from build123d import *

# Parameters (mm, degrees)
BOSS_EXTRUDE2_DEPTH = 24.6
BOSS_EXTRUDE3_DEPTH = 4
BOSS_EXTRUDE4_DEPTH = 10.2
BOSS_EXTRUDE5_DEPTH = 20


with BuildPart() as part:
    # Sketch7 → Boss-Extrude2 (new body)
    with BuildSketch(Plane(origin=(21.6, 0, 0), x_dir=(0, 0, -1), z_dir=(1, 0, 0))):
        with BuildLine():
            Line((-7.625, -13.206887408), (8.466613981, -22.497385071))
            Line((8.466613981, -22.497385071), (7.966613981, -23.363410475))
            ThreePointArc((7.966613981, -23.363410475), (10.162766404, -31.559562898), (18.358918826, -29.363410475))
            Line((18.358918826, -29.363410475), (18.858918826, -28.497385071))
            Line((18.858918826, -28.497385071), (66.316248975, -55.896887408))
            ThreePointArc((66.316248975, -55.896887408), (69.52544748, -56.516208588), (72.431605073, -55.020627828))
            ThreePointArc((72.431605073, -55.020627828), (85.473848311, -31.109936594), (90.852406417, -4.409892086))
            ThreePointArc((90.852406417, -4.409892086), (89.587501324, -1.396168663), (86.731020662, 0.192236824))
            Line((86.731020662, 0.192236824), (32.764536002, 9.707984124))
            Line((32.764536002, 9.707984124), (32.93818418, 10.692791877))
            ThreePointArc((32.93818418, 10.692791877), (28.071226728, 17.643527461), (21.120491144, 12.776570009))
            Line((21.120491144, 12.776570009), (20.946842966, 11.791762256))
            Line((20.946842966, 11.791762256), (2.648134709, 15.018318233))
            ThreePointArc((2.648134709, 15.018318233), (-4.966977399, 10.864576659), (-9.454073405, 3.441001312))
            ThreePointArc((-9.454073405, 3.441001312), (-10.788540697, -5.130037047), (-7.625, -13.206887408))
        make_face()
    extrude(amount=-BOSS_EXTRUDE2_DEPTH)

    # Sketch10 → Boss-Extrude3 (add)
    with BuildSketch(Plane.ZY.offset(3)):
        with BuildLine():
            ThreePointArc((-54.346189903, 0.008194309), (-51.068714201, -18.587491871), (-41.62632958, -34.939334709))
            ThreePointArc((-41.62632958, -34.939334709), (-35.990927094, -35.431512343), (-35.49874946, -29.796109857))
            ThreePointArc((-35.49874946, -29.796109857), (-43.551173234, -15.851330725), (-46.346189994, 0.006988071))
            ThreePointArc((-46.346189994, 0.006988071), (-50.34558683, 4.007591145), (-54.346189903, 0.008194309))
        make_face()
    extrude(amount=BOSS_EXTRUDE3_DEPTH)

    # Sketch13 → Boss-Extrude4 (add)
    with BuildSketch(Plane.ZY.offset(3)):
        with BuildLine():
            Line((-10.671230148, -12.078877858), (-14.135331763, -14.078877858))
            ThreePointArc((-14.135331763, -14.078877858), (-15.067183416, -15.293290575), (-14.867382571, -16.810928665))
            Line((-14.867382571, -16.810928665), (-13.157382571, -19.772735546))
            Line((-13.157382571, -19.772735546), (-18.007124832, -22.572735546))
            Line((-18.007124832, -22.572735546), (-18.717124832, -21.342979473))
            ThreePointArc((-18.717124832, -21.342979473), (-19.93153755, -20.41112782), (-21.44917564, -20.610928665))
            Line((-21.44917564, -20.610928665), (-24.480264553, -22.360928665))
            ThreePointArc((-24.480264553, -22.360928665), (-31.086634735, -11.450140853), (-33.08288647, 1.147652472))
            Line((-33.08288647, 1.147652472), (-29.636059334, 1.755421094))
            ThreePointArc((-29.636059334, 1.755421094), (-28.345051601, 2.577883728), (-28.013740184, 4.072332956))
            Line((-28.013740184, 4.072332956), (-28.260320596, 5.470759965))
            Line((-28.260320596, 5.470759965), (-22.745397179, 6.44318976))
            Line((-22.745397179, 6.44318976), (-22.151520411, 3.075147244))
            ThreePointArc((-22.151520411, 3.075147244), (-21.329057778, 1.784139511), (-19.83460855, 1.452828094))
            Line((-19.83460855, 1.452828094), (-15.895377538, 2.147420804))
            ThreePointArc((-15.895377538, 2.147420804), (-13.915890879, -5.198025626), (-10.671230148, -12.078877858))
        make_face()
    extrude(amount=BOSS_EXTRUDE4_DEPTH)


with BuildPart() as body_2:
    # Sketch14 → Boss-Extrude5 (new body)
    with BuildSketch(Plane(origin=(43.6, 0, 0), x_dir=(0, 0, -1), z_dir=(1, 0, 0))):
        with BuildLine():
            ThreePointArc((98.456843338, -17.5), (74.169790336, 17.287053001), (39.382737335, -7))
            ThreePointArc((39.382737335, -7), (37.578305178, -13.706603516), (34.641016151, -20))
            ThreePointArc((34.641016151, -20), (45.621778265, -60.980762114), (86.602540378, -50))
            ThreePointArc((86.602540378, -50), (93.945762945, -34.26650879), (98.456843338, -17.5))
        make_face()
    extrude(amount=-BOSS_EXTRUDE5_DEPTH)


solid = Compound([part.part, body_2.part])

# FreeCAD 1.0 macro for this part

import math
import FreeCAD as App
import Part
import Sketcher
Q = App.Units.Quantity

doc = App.newDocument("Part")
body = doc.addObject("PartDesign::Body", "Body")

sketch1 = doc.addObject("Sketcher::SketchObject", "Sketch")
body.addObject(sketch1)
sketch1.AttachmentSupport = (doc.YZ_Plane, [""])
sketch1.MapMode = "FlatFace"
sketch1.AttachmentOffset = App.Placement(App.Vector(0, 0, 21.6), App.Rotation())
sketch1.addGeometry(Part.LineSegment(App.Vector(-13.2, 7.6, 0), App.Vector(-22.5, -8.5, 0)), False)
sketch1.addGeometry(Part.LineSegment(App.Vector(-22.5, -8.5, 0), App.Vector(-23.4, -8, 0)), False)
sketch1.addGeometry(Part.ArcOfCircle(Part.Circle(App.Vector(-26.4, -13.2, 0), App.Vector(0, 0, 1), 6), math.radians(60), math.radians(240)), False)
sketch1.addGeometry(Part.LineSegment(App.Vector(-29.4, -18.4, 0), App.Vector(-28.5, -18.9, 0)), False)
sketch1.addGeometry(Part.LineSegment(App.Vector(-28.5, -18.9, 0), App.Vector(-55.9, -66.3, 0)), False)
sketch1.addGeometry(Part.ArcOfCircle(Part.Circle(App.Vector(-51.6, -68.8, 0), App.Vector(0, 0, 1), 5), math.radians(150), math.radians(226)), False)
sketch1.addGeometry(Part.ArcOfCircle(Part.Circle(App.Vector(0, 0, 0), App.Vector(0, 0, 1), 91), math.radians(-127), math.radians(-93)), False)
sketch1.addGeometry(Part.ArcOfCircle(Part.Circle(App.Vector(-4.7, -85.9, 0), App.Vector(0, 0, 1), 5), math.radians(-86), math.radians(-10)), False)
sketch1.addGeometry(Part.LineSegment(App.Vector(0.2, -86.7, 0), App.Vector(9.7, -32.8, 0)), False)
sketch1.addGeometry(Part.LineSegment(App.Vector(9.7, -32.8, 0), App.Vector(10.7, -32.9, 0)), False)
sketch1.addGeometry(Part.ArcOfCircle(Part.Circle(App.Vector(11.7, -27, 0), App.Vector(0, 0, 1), 6), math.radians(-100), math.radians(80)), False)
sketch1.addGeometry(Part.LineSegment(App.Vector(12.8, -21.1, 0), App.Vector(11.8, -20.9, 0)), False)
sketch1.addGeometry(Part.LineSegment(App.Vector(11.8, -20.9, 0), App.Vector(15, -2.6, 0)), False)
sketch1.addGeometry(Part.ArcOfCircle(Part.Circle(App.Vector(-1.2, -6.5, 0), App.Vector(0, 0, 1), 16.6), math.radians(13), math.radians(74)), False)
sketch1.addGeometry(Part.ArcOfCircle(Part.Circle(App.Vector(-3.3, -5.7, 0), App.Vector(0, 0, 1), 16.6), math.radians(66), math.radians(127)), False)
sketch1.addConstraint(Sketcher.Constraint("Coincident", 0, 2, 1, 1))
sketch1.addConstraint(Sketcher.Constraint("Tangent", 1, 2, 2, 1))
sketch1.addConstraint(Sketcher.Constraint("Tangent", 2, 2, 3, 1))
sketch1.addConstraint(Sketcher.Constraint("Coincident", 3, 2, 4, 1))
sketch1.addConstraint(Sketcher.Constraint("Tangent", 4, 2, 5, 1))
sketch1.addConstraint(Sketcher.Constraint("Coincident", 5, 2, 6, 1))
sketch1.addConstraint(Sketcher.Constraint("Coincident", 6, 2, 7, 1))
sketch1.addConstraint(Sketcher.Constraint("Tangent", 7, 2, 8, 1))
sketch1.addConstraint(Sketcher.Constraint("Coincident", 8, 2, 9, 1))
sketch1.addConstraint(Sketcher.Constraint("Tangent", 9, 2, 10, 1))
sketch1.addConstraint(Sketcher.Constraint("Tangent", 10, 2, 11, 1))
sketch1.addConstraint(Sketcher.Constraint("Coincident", 11, 2, 12, 1))
sketch1.addConstraint(Sketcher.Constraint("Coincident", 12, 2, 13, 1))
sketch1.addConstraint(Sketcher.Constraint("Coincident", 13, 2, 14, 1))
sketch1.addConstraint(Sketcher.Constraint("Coincident", 14, 2, 0, 1))
sketch1.addConstraint(Sketcher.Constraint("Coincident", 6, 3, -1, 1))
sketch1.addConstraint(Sketcher.Constraint("Equal", 5, 7))
sketch1.addConstraint(Sketcher.Constraint("Equal", 2, 10))
sketch1.addConstraint(Sketcher.Constraint("Equal", 13, 14))
sketch1.addConstraint(Sketcher.Constraint("Perpendicular", 0, 1))
sketch1.addConstraint(Sketcher.Constraint("Parallel", 1, 3))
sketch1.addConstraint(Sketcher.Constraint("Perpendicular", 3, 4))
sketch1.addConstraint(Sketcher.Constraint("Perpendicular", 8, 9))
sketch1.addConstraint(Sketcher.Constraint("Parallel", 9, 11))
sketch1.addConstraint(Sketcher.Constraint("Perpendicular", 11, 12))
sketch1.addConstraint(Sketcher.Constraint("Equal", 1, 3))
sketch1.addConstraint(Sketcher.Constraint("Equal", 4, 8))
sketch1.addConstraint(Sketcher.Constraint("Equal", 3, 9))
sketch1.addConstraint(Sketcher.Constraint("Equal", 9, 11))
sketch1.addConstraint(Sketcher.Constraint("Equal", 0, 12))
sketch1.addConstraint(Sketcher.Constraint("Radius", 2, Q("6 mm")))
sketch1.addConstraint(Sketcher.Constraint("Radius", 5, Q("5 mm")))
sketch1.addConstraint(Sketcher.Constraint("Angle", 0, Q("-120 deg")))
sketch1.addConstraint(Sketcher.Constraint("Angle", 8, Q("80 deg")))
sketch1.addConstraint(Sketcher.Constraint("Distance", 1, Q("1 mm")))
sketch1.addConstraint(Sketcher.Constraint("Radius", 6, Q("90.95937 mm")))
sketch1.addConstraint(Sketcher.Constraint("DistanceX", -1, 1, 13, 2, Q("3.441001 mm")))
sketch1.addConstraint(Sketcher.Constraint("DistanceY", -1, 1, 14, 2, Q("7.625 mm")))
sketch1.addConstraint(Sketcher.Constraint("Radius", 13, Q("16.628125 mm")))
sketch1.addConstraint(Sketcher.Constraint("DistanceX", 7, 3, -1, 1, Q("4.731802 mm")))
sketch1.addConstraint(Sketcher.Constraint("DistanceX", 5, 3, 13, 3, Q("50.415799 mm")))
sketch1.addConstraint(Sketcher.Constraint("DistanceX", 14, 3, 13, 3, Q("2.163101 mm")))
sketch1.addConstraint(Sketcher.Constraint("DistanceY", 6, 2, 5, 2, Q("18.420801 mm")))
sketch1.addConstraint(Sketcher.Constraint("DistanceY", 14, 3, 13, 2, Q("15.194198 mm")))
sketch1.addConstraint(Sketcher.Constraint("DistanceX", 2, 3, -1, 1, Q("26.36341 mm")))
pad1 = doc.addObject("PartDesign::Pad", "Pad")
body.addObject(pad1)
pad1.Profile = sketch1
pad1.Length = 24.6
pad1.Reversed = True

sketch2 = doc.addObject("Sketcher::SketchObject", "Sketch001")
body.addObject(sketch2)
sketch2.AttachmentSupport = (doc.YZ_Plane, [""])
sketch2.MapMode = "FlatFace"
sketch2.AttachmentOffset = App.Placement(App.Vector(0, 0, -3), App.Rotation())
sketch2.addGeometry(Part.ArcOfCircle(Part.Circle(App.Vector(0, 0, 0), App.Vector(0, 0, 1), 54.3), math.radians(-130), math.radians(-90)), False)
sketch2.addGeometry(Part.ArcOfCircle(Part.Circle(App.Vector(-32.4, -38.6, 0), App.Vector(0, 0, 1), 4), math.radians(50), math.radians(230)), False)
sketch2.addGeometry(Part.ArcOfCircle(Part.Circle(App.Vector(0, 0, 0), App.Vector(0, 0, 1), 46.3), math.radians(-130), math.radians(-90)), False)
sketch2.addGeometry(Part.ArcOfCircle(Part.Circle(App.Vector(0, -50.3, 0), App.Vector(0, 0, 1), 4), math.radians(-90), math.radians(90)), False)
sketch2.addConstraint(Sketcher.Constraint("Tangent", 0, 1, 1, 2))
sketch2.addConstraint(Sketcher.Constraint("Tangent", 1, 1, 2, 1))
sketch2.addConstraint(Sketcher.Constraint("Tangent", 2, 2, 3, 2))
sketch2.addConstraint(Sketcher.Constraint("Tangent", 3, 1, 0, 2))
sketch2.addConstraint(Sketcher.Constraint("Coincident", 0, 3, -1, 1))
sketch2.addConstraint(Sketcher.Constraint("Coincident", 2, 3, -1, 1))
sketch2.addConstraint(Sketcher.Constraint("Radius", 1, Q("4 mm")))
sketch2.addConstraint(Sketcher.Constraint("Radius", 0, Q("54.346191 mm")))
sketch2.addConstraint(Sketcher.Constraint("DistanceX", 1, 1, 3, 3, Q("29.803701 mm")))
sketch2.addConstraint(Sketcher.Constraint("DistanceY", 1, 3, -1, 1, Q("38.56254 mm")))
pad2 = doc.addObject("PartDesign::Pad", "Pad001")
body.addObject(pad2)
pad2.Profile = sketch2
pad2.Length = 4
pad2.Reversed = True

sketch3 = doc.addObject("Sketcher::SketchObject", "Sketch002")
body.addObject(sketch3)
sketch3.AttachmentSupport = (doc.YZ_Plane, [""])
sketch3.MapMode = "FlatFace"
sketch3.AttachmentOffset = App.Placement(App.Vector(0, 0, -3), App.Rotation())
sketch3.addGeometry(Part.LineSegment(App.Vector(-14.1, -14.1, 0), App.Vector(-12.1, -10.7, 0)), False)
sketch3.addGeometry(Part.ArcOfCircle(Part.Circle(App.Vector(9.6, 26.4, 0), App.Vector(0, 0, 1), 42.9), math.radians(-120), math.radians(-100)), False)
sketch3.addGeometry(Part.LineSegment(App.Vector(2.1, -15.9, 0), App.Vector(1.5, -19.8, 0)), False)
sketch3.addGeometry(Part.ArcOfCircle(Part.Circle(App.Vector(3.4, -20.2, 0), App.Vector(0, 0, 1), 2), math.radians(170), math.radians(260)), False)
sketch3.addGeometry(Part.LineSegment(App.Vector(3.1, -22.2, 0), App.Vector(6.4, -22.7, 0)), False)
sketch3.addGeometry(Part.LineSegment(App.Vector(6.4, -22.7, 0), App.Vector(5.5, -28.3, 0)), False)
sketch3.addGeometry(Part.LineSegment(App.Vector(5.5, -28.3, 0), App.Vector(4.1, -28, 0)), False)
sketch3.addGeometry(Part.ArcOfCircle(Part.Circle(App.Vector(3.7, -30, 0), App.Vector(0, 0, 1), 2), math.radians(80), math.radians(170)), False)
sketch3.addGeometry(Part.LineSegment(App.Vector(1.8, -29.6, 0), App.Vector(1.1, -33.1, 0)), False)
sketch3.addGeometry(Part.ArcOfCircle(Part.Circle(App.Vector(-0.1, 0, 0), App.Vector(0, 0, 1), 33.1), math.radians(-132), math.radians(-88)), False)
sketch3.addGeometry(Part.LineSegment(App.Vector(-22.4, -24.5, 0), App.Vector(-20.6, -21.4, 0)), False)
sketch3.addGeometry(Part.ArcOfCircle(Part.Circle(App.Vector(-22.3, -20.4, 0), App.Vector(0, 0, 1), 2), math.radians(-30), math.radians(60)), False)
sketch3.addGeometry(Part.LineSegment(App.Vector(-21.3, -18.7, 0), App.Vector(-22.6, -18, 0)), False)
sketch3.addGeometry(Part.LineSegment(App.Vector(-22.6, -18, 0), App.Vector(-19.8, -13.2, 0)), False)
sketch3.addGeometry(Part.LineSegment(App.Vector(-19.8, -13.2, 0), App.Vector(-16.8, -14.9, 0)), False)
sketch3.addGeometry(Part.ArcOfCircle(Part.Circle(App.Vector(-15.8, -13.1, 0), App.Vector(0, 0, 1), 2), math.radians(-120), math.radians(-30)), False)
sketch3.addConstraint(Sketcher.Constraint("Coincident", 0, 2, 1, 1))
sketch3.addConstraint(Sketcher.Constraint("Coincident", 1, 2, 2, 1))
sketch3.addConstraint(Sketcher.Constraint("Tangent", 2, 2, 3, 1))
sketch3.addConstraint(Sketcher.Constraint("Tangent", 3, 2, 4, 1))
sketch3.addConstraint(Sketcher.Constraint("Coincident", 4, 2, 5, 1))
sketch3.addConstraint(Sketcher.Constraint("Coincident", 5, 2, 6, 1))
sketch3.addConstraint(Sketcher.Constraint("Tangent", 6, 2, 7, 1))
sketch3.addConstraint(Sketcher.Constraint("Tangent", 7, 2, 8, 1))
sketch3.addConstraint(Sketcher.Constraint("Coincident", 8, 2, 9, 2))
sketch3.addConstraint(Sketcher.Constraint("Coincident", 9, 1, 10, 1))
sketch3.addConstraint(Sketcher.Constraint("Tangent", 10, 2, 11, 1))
sketch3.addConstraint(Sketcher.Constraint("Tangent", 11, 2, 12, 1))
sketch3.addConstraint(Sketcher.Constraint("Coincident", 12, 2, 13, 1))
sketch3.addConstraint(Sketcher.Constraint("Coincident", 13, 2, 14, 1))
sketch3.addConstraint(Sketcher.Constraint("Tangent", 14, 2, 15, 1))
sketch3.addConstraint(Sketcher.Constraint("Tangent", 15, 2, 0, 1))
sketch3.addConstraint(Sketcher.Constraint("Equal", 3, 7))
sketch3.addConstraint(Sketcher.Constraint("Equal", 7, 11))
sketch3.addConstraint(Sketcher.Constraint("Equal", 11, 15))
sketch3.addConstraint(Sketcher.Constraint("Perpendicular", 2, 4))
sketch3.addConstraint(Sketcher.Constraint("Perpendicular", 4, 5))
sketch3.addConstraint(Sketcher.Constraint("Perpendicular", 5, 6))
sketch3.addConstraint(Sketcher.Constraint("Perpendicular", 6, 8))
sketch3.addConstraint(Sketcher.Constraint("Parallel", 0, 10))
sketch3.addConstraint(Sketcher.Constraint("Perpendicular", 10, 12))
sketch3.addConstraint(Sketcher.Constraint("Perpendicular", 12, 13))
sketch3.addConstraint(Sketcher.Constraint("Perpendicular", 13, 14))
sketch3.addConstraint(Sketcher.Constraint("Equal", 0, 2))
sketch3.addConstraint(Sketcher.Constraint("Equal", 8, 10))
sketch3.addConstraint(Sketcher.Constraint("Equal", 6, 12))
sketch3.addConstraint(Sketcher.Constraint("Equal", 5, 13))
sketch3.addConstraint(Sketcher.Constraint("Equal", 4, 14))
sketch3.addConstraint(Sketcher.Constraint("Radius", 3, Q("2 mm")))
sketch3.addConstraint(Sketcher.Constraint("Angle", 0, Q("60 deg")))
sketch3.addConstraint(Sketcher.Constraint("Angle", 2, Q("-100 deg")))
sketch3.addConstraint(Sketcher.Constraint("Distance", 0, Q("4 mm")))
sketch3.addConstraint(Sketcher.Constraint("Distance", 5, Q("5.6 mm")))
sketch3.addConstraint(Sketcher.Constraint("Distance", 8, Q("3.5 mm")))
sketch3.addConstraint(Sketcher.Constraint("DistanceX", 10, 2, 15, 3, Q("4.8 mm")))
sketch3.addConstraint(Sketcher.Constraint("Distance", 4, Q("3.42 mm")))
sketch3.addConstraint(Sketcher.Constraint("Radius", 1, Q("42.940179 mm")))
sketch3.addConstraint(Sketcher.Constraint("Radius", 9, Q("33.140433 mm")))
sketch3.addConstraint(Sketcher.Constraint("DistanceY", 7, 3, 1, 3, Q("56.375799 mm")))
sketch3.addConstraint(Sketcher.Constraint("DistanceX", 9, 3, 3, 3, Q("3.4839 mm")))
sketch3.addConstraint(Sketcher.Constraint("DistanceX", 11, 3, -1, 1, Q("22.342979 mm")))
sketch3.addConstraint(Sketcher.Constraint("DistanceY", 15, 3, -1, 1, Q("13.135332 mm")))
pad3 = doc.addObject("PartDesign::Pad", "Pad002")
body.addObject(pad3)
pad3.Profile = sketch3
pad3.Length = 10.2
pad3.Reversed = True
body2 = doc.addObject("PartDesign::Body", "Body001")

sketch4 = doc.addObject("Sketcher::SketchObject", "Sketch003")
body2.addObject(sketch4)
sketch4.AttachmentSupport = (doc.getObject("YZ_Plane001"), [""])
sketch4.MapMode = "FlatFace"
sketch4.AttachmentOffset = App.Placement(App.Vector(0, 0, 43.6), App.Rotation())
sketch4.addGeometry(Part.ArcOfCircle(Part.Circle(App.Vector(-12, -69, 0), App.Vector(0, 0, 1), 30), math.radians(-100), math.radians(80)), False)
sketch4.addGeometry(Part.ArcOfCircle(Part.Circle(App.Vector(0, 0, 0), App.Vector(0, 0, 1), 40), math.radians(-120), math.radians(-100.08)), False)
sketch4.addGeometry(Part.ArcOfCircle(Part.Circle(App.Vector(-35, -61, 0), App.Vector(0, 0, 1), 30), math.radians(60), math.radians(240)), False)
sketch4.addGeometry(Part.ArcOfCircle(Part.Circle(App.Vector(0, 0, 0), App.Vector(0, 0, 1), 100), math.radians(-120), math.radians(-100.08)), False)
sketch4.addConstraint(Sketcher.Constraint("Tangent", 0, 2, 1, 2))
sketch4.addConstraint(Sketcher.Constraint("Tangent", 1, 1, 2, 1))
sketch4.addConstraint(Sketcher.Constraint("Tangent", 2, 2, 3, 1))
sketch4.addConstraint(Sketcher.Constraint("Tangent", 3, 2, 0, 1))
sketch4.addConstraint(Sketcher.Constraint("Coincident", 1, 3, -1, 1))
sketch4.addConstraint(Sketcher.Constraint("Coincident", 3, 3, -1, 1))
sketch4.addConstraint(Sketcher.Constraint("Radius", 0, Q("30 mm")))
sketch4.addConstraint(Sketcher.Constraint("Radius", 1, Q("40 mm")))
sketch4.addConstraint(Sketcher.Constraint("DistanceX", 2, 3, -1, 1, Q("35 mm")))
sketch4.addConstraint(Sketcher.Constraint("DistanceX", 0, 2, -1, 1, Q("7 mm")))
pad4 = doc.addObject("PartDesign::Pad", "Pad003")
body2.addObject(pad4)
pad4.Profile = sketch4
pad4.Length = 20
pad4.Reversed = True

doc.recompute()
